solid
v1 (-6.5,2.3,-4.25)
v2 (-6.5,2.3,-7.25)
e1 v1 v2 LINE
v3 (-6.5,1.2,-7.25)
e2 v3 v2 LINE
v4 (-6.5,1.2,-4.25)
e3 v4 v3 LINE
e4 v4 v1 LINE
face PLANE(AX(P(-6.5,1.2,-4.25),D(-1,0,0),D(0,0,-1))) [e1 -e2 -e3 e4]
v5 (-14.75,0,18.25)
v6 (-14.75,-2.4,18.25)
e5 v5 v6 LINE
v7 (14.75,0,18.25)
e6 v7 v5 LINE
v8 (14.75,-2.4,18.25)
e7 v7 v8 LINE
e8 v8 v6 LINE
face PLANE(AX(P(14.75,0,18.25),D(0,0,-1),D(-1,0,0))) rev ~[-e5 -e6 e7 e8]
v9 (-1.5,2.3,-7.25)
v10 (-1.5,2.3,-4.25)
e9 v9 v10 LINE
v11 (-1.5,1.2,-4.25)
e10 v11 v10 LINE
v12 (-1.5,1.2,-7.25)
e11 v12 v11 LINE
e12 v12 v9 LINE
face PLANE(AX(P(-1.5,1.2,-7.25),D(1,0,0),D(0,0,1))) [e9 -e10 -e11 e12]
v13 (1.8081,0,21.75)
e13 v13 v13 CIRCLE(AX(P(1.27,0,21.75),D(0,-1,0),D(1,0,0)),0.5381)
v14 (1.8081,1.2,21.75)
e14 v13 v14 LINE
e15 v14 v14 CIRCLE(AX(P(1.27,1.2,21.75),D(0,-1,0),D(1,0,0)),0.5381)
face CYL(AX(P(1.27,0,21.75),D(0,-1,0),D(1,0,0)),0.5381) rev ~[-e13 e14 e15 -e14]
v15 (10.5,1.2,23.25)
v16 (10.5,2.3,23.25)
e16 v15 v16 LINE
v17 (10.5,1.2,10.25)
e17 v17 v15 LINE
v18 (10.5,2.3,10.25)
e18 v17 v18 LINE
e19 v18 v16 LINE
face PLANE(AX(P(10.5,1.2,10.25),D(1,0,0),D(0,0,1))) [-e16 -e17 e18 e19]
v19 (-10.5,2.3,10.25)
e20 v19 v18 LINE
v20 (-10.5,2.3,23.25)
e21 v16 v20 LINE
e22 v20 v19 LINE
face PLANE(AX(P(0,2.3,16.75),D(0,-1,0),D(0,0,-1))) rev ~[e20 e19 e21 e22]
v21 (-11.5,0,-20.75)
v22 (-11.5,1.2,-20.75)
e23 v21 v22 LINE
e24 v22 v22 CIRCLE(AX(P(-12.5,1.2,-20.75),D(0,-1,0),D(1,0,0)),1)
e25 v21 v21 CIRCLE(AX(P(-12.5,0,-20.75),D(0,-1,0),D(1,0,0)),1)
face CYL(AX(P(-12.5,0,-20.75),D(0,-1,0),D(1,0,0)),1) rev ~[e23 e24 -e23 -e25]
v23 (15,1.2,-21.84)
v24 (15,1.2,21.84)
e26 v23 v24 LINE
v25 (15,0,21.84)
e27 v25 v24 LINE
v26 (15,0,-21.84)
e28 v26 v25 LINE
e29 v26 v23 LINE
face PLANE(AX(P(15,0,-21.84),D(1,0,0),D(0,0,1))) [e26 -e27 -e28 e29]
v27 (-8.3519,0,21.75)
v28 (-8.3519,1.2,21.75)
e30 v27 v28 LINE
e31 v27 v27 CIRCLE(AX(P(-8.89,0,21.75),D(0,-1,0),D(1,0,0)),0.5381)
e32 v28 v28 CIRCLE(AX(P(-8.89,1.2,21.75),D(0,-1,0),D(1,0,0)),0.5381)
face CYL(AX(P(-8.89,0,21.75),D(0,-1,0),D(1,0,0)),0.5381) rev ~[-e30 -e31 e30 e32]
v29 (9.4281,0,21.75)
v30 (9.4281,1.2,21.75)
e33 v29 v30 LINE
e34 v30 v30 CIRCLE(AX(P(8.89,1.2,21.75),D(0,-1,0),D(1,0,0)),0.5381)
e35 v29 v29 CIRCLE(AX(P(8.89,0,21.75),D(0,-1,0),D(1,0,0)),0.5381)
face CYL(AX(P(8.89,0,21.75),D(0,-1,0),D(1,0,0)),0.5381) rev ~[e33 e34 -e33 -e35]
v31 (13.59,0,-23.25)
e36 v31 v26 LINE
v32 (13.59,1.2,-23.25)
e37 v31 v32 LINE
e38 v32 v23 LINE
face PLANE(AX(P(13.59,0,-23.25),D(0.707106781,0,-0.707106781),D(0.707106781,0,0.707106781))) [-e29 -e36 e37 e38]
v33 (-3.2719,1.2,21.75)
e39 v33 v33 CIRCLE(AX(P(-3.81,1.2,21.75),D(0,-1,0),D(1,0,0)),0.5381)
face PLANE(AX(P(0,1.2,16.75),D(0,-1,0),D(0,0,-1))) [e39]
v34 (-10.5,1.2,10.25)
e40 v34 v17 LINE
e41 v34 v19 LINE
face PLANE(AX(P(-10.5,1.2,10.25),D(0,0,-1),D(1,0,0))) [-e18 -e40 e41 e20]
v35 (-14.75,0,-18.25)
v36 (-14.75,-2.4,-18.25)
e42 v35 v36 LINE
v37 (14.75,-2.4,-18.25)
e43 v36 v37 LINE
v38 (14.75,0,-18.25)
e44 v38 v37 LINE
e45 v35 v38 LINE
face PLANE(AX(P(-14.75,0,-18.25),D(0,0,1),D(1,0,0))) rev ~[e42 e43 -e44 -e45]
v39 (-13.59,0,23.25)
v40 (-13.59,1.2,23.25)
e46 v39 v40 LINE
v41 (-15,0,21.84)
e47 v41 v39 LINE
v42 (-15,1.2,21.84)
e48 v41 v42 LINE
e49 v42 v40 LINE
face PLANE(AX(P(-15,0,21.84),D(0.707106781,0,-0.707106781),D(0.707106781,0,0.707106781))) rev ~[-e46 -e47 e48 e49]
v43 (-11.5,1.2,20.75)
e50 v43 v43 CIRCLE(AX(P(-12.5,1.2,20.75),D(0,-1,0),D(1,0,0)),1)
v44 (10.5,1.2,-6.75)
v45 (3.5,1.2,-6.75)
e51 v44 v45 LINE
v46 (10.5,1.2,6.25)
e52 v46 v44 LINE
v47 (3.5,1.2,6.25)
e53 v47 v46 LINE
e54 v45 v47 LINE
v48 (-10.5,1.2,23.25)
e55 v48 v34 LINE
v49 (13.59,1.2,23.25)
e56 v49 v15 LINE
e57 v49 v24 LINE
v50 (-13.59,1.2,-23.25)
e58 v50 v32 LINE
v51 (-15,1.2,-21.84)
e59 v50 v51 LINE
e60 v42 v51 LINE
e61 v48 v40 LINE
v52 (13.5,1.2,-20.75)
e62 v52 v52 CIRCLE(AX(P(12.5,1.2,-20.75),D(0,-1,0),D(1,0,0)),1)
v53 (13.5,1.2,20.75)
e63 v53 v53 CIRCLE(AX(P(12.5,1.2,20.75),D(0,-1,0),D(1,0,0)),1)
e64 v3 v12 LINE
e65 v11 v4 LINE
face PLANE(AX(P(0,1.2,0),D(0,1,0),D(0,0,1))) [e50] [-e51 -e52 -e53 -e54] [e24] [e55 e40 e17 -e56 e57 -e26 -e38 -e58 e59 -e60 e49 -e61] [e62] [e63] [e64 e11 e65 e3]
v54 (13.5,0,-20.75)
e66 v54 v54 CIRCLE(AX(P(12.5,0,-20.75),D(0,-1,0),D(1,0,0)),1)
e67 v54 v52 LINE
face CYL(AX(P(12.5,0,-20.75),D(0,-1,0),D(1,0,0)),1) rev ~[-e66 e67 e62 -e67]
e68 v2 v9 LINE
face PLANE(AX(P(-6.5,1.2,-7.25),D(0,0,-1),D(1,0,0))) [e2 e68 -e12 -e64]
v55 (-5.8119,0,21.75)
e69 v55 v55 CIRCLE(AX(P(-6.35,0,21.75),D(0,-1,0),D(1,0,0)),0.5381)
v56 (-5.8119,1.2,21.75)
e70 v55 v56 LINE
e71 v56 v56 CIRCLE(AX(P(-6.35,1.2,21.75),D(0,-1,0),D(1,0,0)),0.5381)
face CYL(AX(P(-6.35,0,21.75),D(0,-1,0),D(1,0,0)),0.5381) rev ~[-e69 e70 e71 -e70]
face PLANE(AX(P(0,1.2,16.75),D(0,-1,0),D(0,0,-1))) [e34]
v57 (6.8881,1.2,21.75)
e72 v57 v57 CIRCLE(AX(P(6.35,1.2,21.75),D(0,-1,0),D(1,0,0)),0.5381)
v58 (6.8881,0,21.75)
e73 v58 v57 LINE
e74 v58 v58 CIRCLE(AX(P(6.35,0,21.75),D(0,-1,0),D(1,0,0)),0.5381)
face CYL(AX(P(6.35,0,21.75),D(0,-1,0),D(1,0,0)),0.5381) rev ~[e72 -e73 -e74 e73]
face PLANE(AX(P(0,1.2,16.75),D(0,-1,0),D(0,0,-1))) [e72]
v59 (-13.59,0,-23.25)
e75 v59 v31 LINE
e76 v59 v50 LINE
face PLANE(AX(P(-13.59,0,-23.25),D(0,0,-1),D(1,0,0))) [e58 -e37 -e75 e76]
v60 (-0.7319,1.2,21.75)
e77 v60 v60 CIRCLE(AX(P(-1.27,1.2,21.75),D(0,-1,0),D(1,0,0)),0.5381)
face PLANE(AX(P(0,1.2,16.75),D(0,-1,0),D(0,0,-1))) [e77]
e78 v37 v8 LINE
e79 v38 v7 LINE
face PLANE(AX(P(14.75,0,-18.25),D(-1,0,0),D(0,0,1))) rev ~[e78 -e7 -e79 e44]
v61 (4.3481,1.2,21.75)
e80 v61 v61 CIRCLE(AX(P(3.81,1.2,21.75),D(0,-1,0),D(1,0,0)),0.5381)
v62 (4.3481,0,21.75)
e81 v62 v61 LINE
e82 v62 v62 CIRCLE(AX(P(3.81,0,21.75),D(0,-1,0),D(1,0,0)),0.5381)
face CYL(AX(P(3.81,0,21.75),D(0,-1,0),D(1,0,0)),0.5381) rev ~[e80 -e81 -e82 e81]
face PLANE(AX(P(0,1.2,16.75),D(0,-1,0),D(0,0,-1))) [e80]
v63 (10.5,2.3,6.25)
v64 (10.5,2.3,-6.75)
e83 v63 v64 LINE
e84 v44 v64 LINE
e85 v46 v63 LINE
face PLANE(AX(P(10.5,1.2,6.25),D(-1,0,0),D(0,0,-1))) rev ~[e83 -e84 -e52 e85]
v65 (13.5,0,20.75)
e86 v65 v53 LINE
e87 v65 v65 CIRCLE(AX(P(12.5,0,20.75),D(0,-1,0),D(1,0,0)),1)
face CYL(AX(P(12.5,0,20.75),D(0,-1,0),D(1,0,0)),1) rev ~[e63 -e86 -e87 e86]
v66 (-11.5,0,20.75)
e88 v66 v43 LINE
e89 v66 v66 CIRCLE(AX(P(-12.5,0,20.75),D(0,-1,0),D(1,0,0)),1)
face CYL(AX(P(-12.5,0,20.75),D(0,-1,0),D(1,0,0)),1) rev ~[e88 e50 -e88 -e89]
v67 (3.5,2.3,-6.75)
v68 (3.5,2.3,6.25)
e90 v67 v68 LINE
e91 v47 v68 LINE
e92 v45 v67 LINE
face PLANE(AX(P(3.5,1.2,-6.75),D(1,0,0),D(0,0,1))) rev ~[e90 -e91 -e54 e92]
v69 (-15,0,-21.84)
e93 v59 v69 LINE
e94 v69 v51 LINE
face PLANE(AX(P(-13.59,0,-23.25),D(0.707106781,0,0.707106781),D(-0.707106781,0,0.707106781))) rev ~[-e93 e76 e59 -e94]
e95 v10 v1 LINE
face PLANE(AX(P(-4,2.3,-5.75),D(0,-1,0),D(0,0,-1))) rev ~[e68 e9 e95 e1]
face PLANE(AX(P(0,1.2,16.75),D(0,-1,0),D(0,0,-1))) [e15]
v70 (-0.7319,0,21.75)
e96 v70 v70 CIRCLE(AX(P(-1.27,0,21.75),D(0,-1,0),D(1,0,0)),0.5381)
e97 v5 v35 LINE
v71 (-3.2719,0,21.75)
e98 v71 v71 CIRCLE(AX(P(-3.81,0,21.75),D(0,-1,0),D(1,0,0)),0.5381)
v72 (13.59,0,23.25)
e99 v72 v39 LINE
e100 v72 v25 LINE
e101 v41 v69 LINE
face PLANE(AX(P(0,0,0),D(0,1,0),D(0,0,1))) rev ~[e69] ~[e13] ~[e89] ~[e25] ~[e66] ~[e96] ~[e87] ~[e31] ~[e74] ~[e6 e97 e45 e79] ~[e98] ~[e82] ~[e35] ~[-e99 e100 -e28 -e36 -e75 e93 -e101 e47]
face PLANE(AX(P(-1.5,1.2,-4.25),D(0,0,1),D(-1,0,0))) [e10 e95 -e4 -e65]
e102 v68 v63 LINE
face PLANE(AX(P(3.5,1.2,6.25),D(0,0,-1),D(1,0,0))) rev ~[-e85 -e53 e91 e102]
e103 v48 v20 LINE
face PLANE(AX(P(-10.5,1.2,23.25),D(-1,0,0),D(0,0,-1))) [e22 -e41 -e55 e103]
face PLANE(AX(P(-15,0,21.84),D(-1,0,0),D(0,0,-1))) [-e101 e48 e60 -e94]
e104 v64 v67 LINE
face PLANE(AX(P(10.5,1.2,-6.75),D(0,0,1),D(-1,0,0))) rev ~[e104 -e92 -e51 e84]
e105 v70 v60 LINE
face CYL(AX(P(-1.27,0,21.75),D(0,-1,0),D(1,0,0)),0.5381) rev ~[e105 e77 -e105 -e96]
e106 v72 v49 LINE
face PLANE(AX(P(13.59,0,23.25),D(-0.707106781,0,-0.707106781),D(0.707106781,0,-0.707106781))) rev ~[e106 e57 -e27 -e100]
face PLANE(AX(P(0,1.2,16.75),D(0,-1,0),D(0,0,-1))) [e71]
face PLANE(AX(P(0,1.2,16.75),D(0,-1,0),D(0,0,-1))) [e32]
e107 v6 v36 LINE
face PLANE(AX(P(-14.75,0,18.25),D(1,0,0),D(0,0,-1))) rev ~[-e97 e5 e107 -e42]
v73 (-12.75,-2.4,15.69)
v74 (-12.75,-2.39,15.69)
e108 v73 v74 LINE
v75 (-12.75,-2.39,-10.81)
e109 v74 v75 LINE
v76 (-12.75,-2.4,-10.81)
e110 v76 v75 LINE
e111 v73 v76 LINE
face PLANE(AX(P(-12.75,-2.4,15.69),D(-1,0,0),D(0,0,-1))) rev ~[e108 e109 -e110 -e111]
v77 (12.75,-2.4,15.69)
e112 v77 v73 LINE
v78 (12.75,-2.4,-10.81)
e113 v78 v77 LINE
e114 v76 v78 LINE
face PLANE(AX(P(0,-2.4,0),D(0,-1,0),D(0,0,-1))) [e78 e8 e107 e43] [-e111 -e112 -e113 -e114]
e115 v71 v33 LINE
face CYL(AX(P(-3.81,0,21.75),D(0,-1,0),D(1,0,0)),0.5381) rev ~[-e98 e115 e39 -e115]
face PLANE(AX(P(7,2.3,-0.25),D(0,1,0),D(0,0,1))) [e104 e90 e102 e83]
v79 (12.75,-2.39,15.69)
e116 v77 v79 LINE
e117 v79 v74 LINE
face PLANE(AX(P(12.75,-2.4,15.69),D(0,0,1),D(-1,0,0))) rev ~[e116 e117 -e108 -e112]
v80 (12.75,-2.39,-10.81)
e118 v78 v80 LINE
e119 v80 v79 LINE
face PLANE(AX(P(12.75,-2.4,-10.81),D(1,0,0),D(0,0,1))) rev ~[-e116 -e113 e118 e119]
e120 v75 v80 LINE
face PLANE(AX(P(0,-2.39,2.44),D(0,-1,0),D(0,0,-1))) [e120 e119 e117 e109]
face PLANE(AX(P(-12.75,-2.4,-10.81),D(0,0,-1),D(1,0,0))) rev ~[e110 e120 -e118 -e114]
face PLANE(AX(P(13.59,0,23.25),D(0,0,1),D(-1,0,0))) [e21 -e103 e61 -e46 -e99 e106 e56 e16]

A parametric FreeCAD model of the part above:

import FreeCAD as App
import Part
import Sketcher

doc = App.newDocument("Part")
body = doc.addObject("PartDesign::Body", "Body")

# Sketch on XZ plane
sketch1 = body.newObject("Sketcher::SketchObject", "Sketch")
sketch1.AttachmentSupport = (doc.getObject("XZ_Plane"), [""])
sketch1.MapMode = "FlatFace"
sketch1.addGeometry([
    Part.LineSegment(App.Vector(-15, -21.8, 0), App.Vector(-13.6, -23.2, 0)),  # 0
    Part.LineSegment(App.Vector(-13.6, -23.2, 0), App.Vector(13.6, -23.2, 0)),  # 1
    Part.LineSegment(App.Vector(13.6, -23.2, 0), App.Vector(15, -21.8, 0)),  # 2
    Part.LineSegment(App.Vector(15, -21.8, 0), App.Vector(15, 21.8, 0)),  # 3
    Part.LineSegment(App.Vector(15, 21.8, 0), App.Vector(13.6, 23.2, 0)),  # 4
    Part.LineSegment(App.Vector(13.6, 23.2, 0), App.Vector(-13.6, 23.2, 0)),  # 5
    Part.LineSegment(App.Vector(-13.6, 23.2, 0), App.Vector(-15, 21.8, 0)),  # 6
    Part.LineSegment(App.Vector(-15, 21.8, 0), App.Vector(-15, -21.8, 0)),  # 7
], False)
sketch1.addConstraint([
    Sketcher.Constraint("Coincident", 0, 2, 1, 1),
    Sketcher.Constraint("Coincident", 1, 2, 2, 1),
    Sketcher.Constraint("Coincident", 2, 2, 3, 1),
    Sketcher.Constraint("Coincident", 3, 2, 4, 1),
    Sketcher.Constraint("Coincident", 4, 2, 5, 1),
    Sketcher.Constraint("Coincident", 5, 2, 6, 1),
    Sketcher.Constraint("Coincident", 6, 2, 7, 1),
    Sketcher.Constraint("Coincident", 7, 2, 0, 1),
    Sketcher.Constraint("Horizontal", 1),
    Sketcher.Constraint("Vertical", 3),
    Sketcher.Constraint("Horizontal", 5),
    Sketcher.Constraint("Vertical", 7),
    Sketcher.Constraint("Symmetric", 0, 2, 4, 2, -1, 1),
    Sketcher.Constraint("Symmetric", 2, 2, 6, 2, -1, 1),
    Sketcher.Constraint("Perpendicular", 0, 2),
    Sketcher.Constraint("Perpendicular", 2, 4),
    Sketcher.Constraint("Perpendicular", 4, 6),
    Sketcher.Constraint("Horizontal", 3, 2, 6, 2),
    Sketcher.Constraint("Vertical", 1, 2, 4, 2),
    Sketcher.Constraint("DistanceX", -1, 1, 2, 2, 15.0),
    Sketcher.Constraint("DistanceX", 1, 1, 1, 2, 27.18),
    Sketcher.Constraint("DistanceY", 3, 1, 3, 2, 43.68),
])
pad1 = body.newObject("PartDesign::Pad", "Pad")
pad1.Profile = sketch1
pad1.Length = 1.2
pad1.Reversed = True

# Sketch on XZ plane
sketch2 = body.newObject("Sketcher::SketchObject", "Sketch001")
sketch2.AttachmentSupport = (doc.getObject("XZ_Plane"), [""])
sketch2.MapMode = "FlatFace"
sketch2.addGeometry([
    Part.LineSegment(App.Vector(15, -18, 0), App.Vector(15, 18, 0)),
    Part.LineSegment(App.Vector(15, 18, 0), App.Vector(-15, 18, 0)),
    Part.LineSegment(App.Vector(-15, 18, 0), App.Vector(-15, -18, 0)),
    Part.LineSegment(App.Vector(-15, -18, 0), App.Vector(15, -18, 0)),
], False)
sketch2.addConstraint([
    Sketcher.Constraint("Coincident", 0, 2, 1, 1),
    Sketcher.Constraint("Coincident", 1, 2, 2, 1),
    Sketcher.Constraint("Coincident", 2, 2, 3, 1),
    Sketcher.Constraint("Coincident", 3, 2, 0, 1),
    Sketcher.Constraint("Vertical", 0),
    Sketcher.Constraint("Horizontal", 1),
    Sketcher.Constraint("Vertical", 2),
    Sketcher.Constraint("Horizontal", 3),
    Sketcher.Constraint("Symmetric", 0, 2, 2, 2, -1, 1),
    Sketcher.Constraint("DistanceX", 1, 2, 1, 1, 29.5),
    Sketcher.Constraint("DistanceY", 0, 1, 0, 2, 36.5),
])
pad2 = body.newObject("PartDesign::Pad", "Pad001")
pad2.Profile = sketch2
pad2.Length = 2.4

# Sketch on XZ plane
sketch3 = body.newObject("Sketcher::SketchObject", "Sketch002")
sketch3.AttachmentSupport = (doc.getObject("XZ_Plane"), [""])
sketch3.MapMode = "FlatFace"
sketch3.addGeometry([
    Part.Circle(App.Vector(-12.5, 20.8, 0), App.Vector(0, 0, 1), 1),
    Part.Circle(App.Vector(12.5, 20.8, 0), App.Vector(0, 0, 1), 1),
    Part.Circle(App.Vector(12.5, -20.8, 0), App.Vector(0, 0, 1), 1),
    Part.Circle(App.Vector(-12.5, -20.8, 0), App.Vector(0, 0, 1), 1),
], False)
sketch3.addConstraint([
    Sketcher.Constraint("Equal", 0, 1),
    Sketcher.Constraint("Equal", 1, 2),
    Sketcher.Constraint("Equal", 2, 3),
    Sketcher.Constraint("Symmetric", 0, 3, 2, 3, -1, 1),
    Sketcher.Constraint("Symmetric", 1, 3, 3, 3, -1, 1),
    Sketcher.Constraint("Symmetric", 0, 3, 1, 3, -2),
    Sketcher.Constraint("Diameter", 0, 2.0),
    Sketcher.Constraint("DistanceX", 0, 3, 1, 3, 25.0),
    Sketcher.Constraint("DistanceY", 2, 3, 1, 3, 41.5),
])
pocket1 = body.newObject("PartDesign::Pocket", "Pocket")
pocket1.Profile = sketch3
pocket1.Type = "UpToFirst"

# Sketch on XZ plane
sketch4 = body.newObject("Sketcher::SketchObject", "Sketch003")
sketch4.AttachmentSupport = (doc.getObject("XZ_Plane"), [""])
sketch4.MapMode = "FlatFace"
sketch4.AttachmentOffset = App.Placement(App.Vector(0, 0, 2.4), App.Rotation())
sketch4.addGeometry([
    Part.LineSegment(App.Vector(13, -11, 0), App.Vector(13, 16, 0)),
    Part.LineSegment(App.Vector(13, 16, 0), App.Vector(-13, 16, 0)),
    Part.LineSegment(App.Vector(-13, 16, 0), App.Vector(-13, -11, 0)),
    Part.LineSegment(App.Vector(-13, -11, 0), App.Vector(13, -11, 0)),
], False)
sketch4.addConstraint([
    Sketcher.Constraint("Coincident", 0, 2, 1, 1),
    Sketcher.Constraint("Coincident", 1, 2, 2, 1),
    Sketcher.Constraint("Coincident", 2, 2, 3, 1),
    Sketcher.Constraint("Coincident", 3, 2, 0, 1),
    Sketcher.Constraint("Vertical", 0),
    Sketcher.Constraint("Horizontal", 1),
    Sketcher.Constraint("Vertical", 2),
    Sketcher.Constraint("Horizontal", 3),
    Sketcher.Constraint("DistanceX", 1, 2, 1, 1, 25.5),
    Sketcher.Constraint("DistanceY", 0, 1, 0, 2, 26.5),
    Sketcher.Constraint("DistanceX", -1, 1, 0, 2, 12.75),
    Sketcher.Constraint("DistanceY", -1, 1, 0, 2, 15.69),
])
pocket2 = body.newObject("PartDesign::Pocket", "Pocket001")
pocket2.Profile = sketch4
pocket2.Length = 0.01

# Sketch on XZ plane
sketch5 = body.newObject("Sketcher::SketchObject", "Sketch004")
sketch5.AttachmentSupport = (doc.getObject("XZ_Plane"), [""])
sketch5.MapMode = "FlatFace"
sketch5.addGeometry([
    Part.Circle(App.Vector(-8.9, 21.8, 0), App.Vector(0, 0, 1), 0.5),  # 0
    Part.Circle(App.Vector(-6.3, 21.8, 0), App.Vector(0, 0, 1), 0.5),  # 1
    Part.Circle(App.Vector(-3.8, 21.8, 0), App.Vector(0, 0, 1), 0.5),  # 2
    Part.Circle(App.Vector(-1.3, 21.8, 0), App.Vector(0, 0, 1), 0.5),  # 3
    Part.Circle(App.Vector(1.3, 21.8, 0), App.Vector(0, 0, 1), 0.5),  # 4
    Part.Circle(App.Vector(3.8, 21.8, 0), App.Vector(0, 0, 1), 0.5),  # 5
    Part.Circle(App.Vector(6.3, 21.8, 0), App.Vector(0, 0, 1), 0.5),  # 6
    Part.Circle(App.Vector(8.9, 21.8, 0), App.Vector(0, 0, 1), 0.5),  # 7
], False)
sketch5.addConstraint([
    Sketcher.Constraint("Equal", 0, 1),
    Sketcher.Constraint("Equal", 1, 2),
    Sketcher.Constraint("Equal", 2, 3),
    Sketcher.Constraint("Equal", 3, 4),
    Sketcher.Constraint("Equal", 4, 5),
    Sketcher.Constraint("Equal", 5, 6),
    Sketcher.Constraint("Equal", 6, 7),
    Sketcher.Constraint("Symmetric", 3, 3, 4, 3, -2),
    Sketcher.Constraint("Symmetric", 2, 3, 5, 3, -2),
    Sketcher.Constraint("Symmetric", 1, 3, 6, 3, -2),
    Sketcher.Constraint("Symmetric", 0, 3, 7, 3, -2),
    Sketcher.Constraint("Horizontal", 0, 3, 1, 3),
    Sketcher.Constraint("Horizontal", 1, 3, 2, 3),
    Sketcher.Constraint("Horizontal", 2, 3, 3, 3),
    Sketcher.Constraint("Diameter", 0, 1.0762),
    Sketcher.Constraint("DistanceX", 0, 3, 5, 3, 12.7),
    Sketcher.Constraint("DistanceX", 1, 3, 6, 3, 12.7),
    Sketcher.Constraint("DistanceX", 0, 3, -1, 1, 8.89),
    Sketcher.Constraint("DistanceY", -1, 1, 0, 3, 21.75),
    Sketcher.Constraint("DistanceX", 3, 3, -1, 1, 1.27),
])
pocket3 = body.newObject("PartDesign::Pocket", "Pocket002")
pocket3.Profile = sketch5
pocket3.Type = "ThroughAll"

# Sketch on XZ plane
sketch6 = body.newObject("Sketcher::SketchObject", "Sketch005")
sketch6.AttachmentSupport = (doc.getObject("XZ_Plane"), [""])
sketch6.MapMode = "FlatFace"
sketch6.AttachmentOffset = App.Placement(App.Vector(0, 0, -1.2), App.Rotation())
sketch6.addGeometry([
    Part.LineSegment(App.Vector(10.5, 10.2, 0), App.Vector(-10.5, 10.2, 0)),  # 0
    Part.LineSegment(App.Vector(-10.5, 10.2, 0), App.Vector(-10.5, 23.2, 0)),  # 1
    Part.LineSegment(App.Vector(-10.5, 23.2, 0), App.Vector(10.5, 23.2, 0)),  # 2
    Part.LineSegment(App.Vector(10.5, 23.2, 0), App.Vector(10.5, 10.2, 0)),  # 3
    Part.LineSegment(App.Vector(10.5, -6.8, 0), App.Vector(3.5, -6.8, 0)),  # 4
    Part.LineSegment(App.Vector(3.5, -6.8, 0), App.Vector(3.5, 6.2, 0)),  # 5
    Part.LineSegment(App.Vector(3.5, 6.2, 0), App.Vector(10.5, 6.2, 0)),  # 6
    Part.LineSegment(App.Vector(10.5, 6.2, 0), App.Vector(10.5, -6.8, 0)),  # 7
    Part.LineSegment(App.Vector(-1.5, -4.2, 0), App.Vector(-1.5, -7.2, 0)),  # 8
    Part.LineSegment(App.Vector(-1.5, -7.2, 0), App.Vector(-6.5, -7.2, 0)),  # 9
    Part.LineSegment(App.Vector(-6.5, -7.2, 0), App.Vector(-6.5, -4.2, 0)),  # 10
    Part.LineSegment(App.Vector(-6.5, -4.2, 0), App.Vector(-1.5, -4.2, 0)),  # 11
], False)
sketch6.addConstraint([
    Sketcher.Constraint("Coincident", 0, 2, 1, 1),
    Sketcher.Constraint("Coincident", 1, 2, 2, 1),
    Sketcher.Constraint("Coincident", 2, 2, 3, 1),
    Sketcher.Constraint("Coincident", 3, 2, 0, 1),
    Sketcher.Constraint("Coincident", 4, 2, 5, 1),
    Sketcher.Constraint("Coincident", 5, 2, 6, 1),
    Sketcher.Constraint("Coincident", 6, 2, 7, 1),
    Sketcher.Constraint("Coincident", 7, 2, 4, 1),
    Sketcher.Constraint("Coincident", 8, 2, 9, 1),
    Sketcher.Constraint("Coincident", 9, 2, 10, 1),
    Sketcher.Constraint("Coincident", 10, 2, 11, 1),
    Sketcher.Constraint("Coincident", 11, 2, 8, 1),
    Sketcher.Constraint("Horizontal", 0),
    Sketcher.Constraint("Vertical", 1),
    Sketcher.Constraint("Horizontal", 2),
    Sketcher.Constraint("Vertical", 3),
    Sketcher.Constraint("Horizontal", 4),
    Sketcher.Constraint("Vertical", 5),
    Sketcher.Constraint("Horizontal", 6),
    Sketcher.Constraint("Vertical", 7),
    Sketcher.Constraint("Vertical", 8),
    Sketcher.Constraint("Horizontal", 9),
    Sketcher.Constraint("Vertical", 10),
    Sketcher.Constraint("Horizontal", 11),
    Sketcher.Constraint("Vertical", 3, 2, 6, 2),
    Sketcher.Constraint("Equal", 3, 5),
    Sketcher.Constraint("DistanceX", 0, 2, 0, 1, 21.0),
    Sketcher.Constraint("DistanceX", 4, 2, 4, 1, 7.0),
    Sketcher.Constraint("DistanceX", 9, 2, 9, 1, 5.0),
    Sketcher.Constraint("DistanceY", 1, 1, 1, 2, 13.0),
    Sketcher.Constraint("DistanceY", 8, 2, 8, 1, 3.0),
    Sketcher.Constraint("DistanceY", 4, 2, 3, 2, 17.0),
    Sketcher.Constraint("DistanceX", 8, 2, 4, 2, 5.0),
    Sketcher.Constraint("DistanceX", 0, 2, -1, 1, 10.5),
    Sketcher.Constraint("DistanceY", 8, 2, 4, 2, 0.5),
    Sketcher.Constraint("DistanceY", -1, 1, 0, 2, 10.25),
])
pad3 = body.newObject("PartDesign::Pad", "Pad002")
pad3.Profile = sketch6
pad3.Length = 1.1
pad3.Reversed = True

doc.recompute()
